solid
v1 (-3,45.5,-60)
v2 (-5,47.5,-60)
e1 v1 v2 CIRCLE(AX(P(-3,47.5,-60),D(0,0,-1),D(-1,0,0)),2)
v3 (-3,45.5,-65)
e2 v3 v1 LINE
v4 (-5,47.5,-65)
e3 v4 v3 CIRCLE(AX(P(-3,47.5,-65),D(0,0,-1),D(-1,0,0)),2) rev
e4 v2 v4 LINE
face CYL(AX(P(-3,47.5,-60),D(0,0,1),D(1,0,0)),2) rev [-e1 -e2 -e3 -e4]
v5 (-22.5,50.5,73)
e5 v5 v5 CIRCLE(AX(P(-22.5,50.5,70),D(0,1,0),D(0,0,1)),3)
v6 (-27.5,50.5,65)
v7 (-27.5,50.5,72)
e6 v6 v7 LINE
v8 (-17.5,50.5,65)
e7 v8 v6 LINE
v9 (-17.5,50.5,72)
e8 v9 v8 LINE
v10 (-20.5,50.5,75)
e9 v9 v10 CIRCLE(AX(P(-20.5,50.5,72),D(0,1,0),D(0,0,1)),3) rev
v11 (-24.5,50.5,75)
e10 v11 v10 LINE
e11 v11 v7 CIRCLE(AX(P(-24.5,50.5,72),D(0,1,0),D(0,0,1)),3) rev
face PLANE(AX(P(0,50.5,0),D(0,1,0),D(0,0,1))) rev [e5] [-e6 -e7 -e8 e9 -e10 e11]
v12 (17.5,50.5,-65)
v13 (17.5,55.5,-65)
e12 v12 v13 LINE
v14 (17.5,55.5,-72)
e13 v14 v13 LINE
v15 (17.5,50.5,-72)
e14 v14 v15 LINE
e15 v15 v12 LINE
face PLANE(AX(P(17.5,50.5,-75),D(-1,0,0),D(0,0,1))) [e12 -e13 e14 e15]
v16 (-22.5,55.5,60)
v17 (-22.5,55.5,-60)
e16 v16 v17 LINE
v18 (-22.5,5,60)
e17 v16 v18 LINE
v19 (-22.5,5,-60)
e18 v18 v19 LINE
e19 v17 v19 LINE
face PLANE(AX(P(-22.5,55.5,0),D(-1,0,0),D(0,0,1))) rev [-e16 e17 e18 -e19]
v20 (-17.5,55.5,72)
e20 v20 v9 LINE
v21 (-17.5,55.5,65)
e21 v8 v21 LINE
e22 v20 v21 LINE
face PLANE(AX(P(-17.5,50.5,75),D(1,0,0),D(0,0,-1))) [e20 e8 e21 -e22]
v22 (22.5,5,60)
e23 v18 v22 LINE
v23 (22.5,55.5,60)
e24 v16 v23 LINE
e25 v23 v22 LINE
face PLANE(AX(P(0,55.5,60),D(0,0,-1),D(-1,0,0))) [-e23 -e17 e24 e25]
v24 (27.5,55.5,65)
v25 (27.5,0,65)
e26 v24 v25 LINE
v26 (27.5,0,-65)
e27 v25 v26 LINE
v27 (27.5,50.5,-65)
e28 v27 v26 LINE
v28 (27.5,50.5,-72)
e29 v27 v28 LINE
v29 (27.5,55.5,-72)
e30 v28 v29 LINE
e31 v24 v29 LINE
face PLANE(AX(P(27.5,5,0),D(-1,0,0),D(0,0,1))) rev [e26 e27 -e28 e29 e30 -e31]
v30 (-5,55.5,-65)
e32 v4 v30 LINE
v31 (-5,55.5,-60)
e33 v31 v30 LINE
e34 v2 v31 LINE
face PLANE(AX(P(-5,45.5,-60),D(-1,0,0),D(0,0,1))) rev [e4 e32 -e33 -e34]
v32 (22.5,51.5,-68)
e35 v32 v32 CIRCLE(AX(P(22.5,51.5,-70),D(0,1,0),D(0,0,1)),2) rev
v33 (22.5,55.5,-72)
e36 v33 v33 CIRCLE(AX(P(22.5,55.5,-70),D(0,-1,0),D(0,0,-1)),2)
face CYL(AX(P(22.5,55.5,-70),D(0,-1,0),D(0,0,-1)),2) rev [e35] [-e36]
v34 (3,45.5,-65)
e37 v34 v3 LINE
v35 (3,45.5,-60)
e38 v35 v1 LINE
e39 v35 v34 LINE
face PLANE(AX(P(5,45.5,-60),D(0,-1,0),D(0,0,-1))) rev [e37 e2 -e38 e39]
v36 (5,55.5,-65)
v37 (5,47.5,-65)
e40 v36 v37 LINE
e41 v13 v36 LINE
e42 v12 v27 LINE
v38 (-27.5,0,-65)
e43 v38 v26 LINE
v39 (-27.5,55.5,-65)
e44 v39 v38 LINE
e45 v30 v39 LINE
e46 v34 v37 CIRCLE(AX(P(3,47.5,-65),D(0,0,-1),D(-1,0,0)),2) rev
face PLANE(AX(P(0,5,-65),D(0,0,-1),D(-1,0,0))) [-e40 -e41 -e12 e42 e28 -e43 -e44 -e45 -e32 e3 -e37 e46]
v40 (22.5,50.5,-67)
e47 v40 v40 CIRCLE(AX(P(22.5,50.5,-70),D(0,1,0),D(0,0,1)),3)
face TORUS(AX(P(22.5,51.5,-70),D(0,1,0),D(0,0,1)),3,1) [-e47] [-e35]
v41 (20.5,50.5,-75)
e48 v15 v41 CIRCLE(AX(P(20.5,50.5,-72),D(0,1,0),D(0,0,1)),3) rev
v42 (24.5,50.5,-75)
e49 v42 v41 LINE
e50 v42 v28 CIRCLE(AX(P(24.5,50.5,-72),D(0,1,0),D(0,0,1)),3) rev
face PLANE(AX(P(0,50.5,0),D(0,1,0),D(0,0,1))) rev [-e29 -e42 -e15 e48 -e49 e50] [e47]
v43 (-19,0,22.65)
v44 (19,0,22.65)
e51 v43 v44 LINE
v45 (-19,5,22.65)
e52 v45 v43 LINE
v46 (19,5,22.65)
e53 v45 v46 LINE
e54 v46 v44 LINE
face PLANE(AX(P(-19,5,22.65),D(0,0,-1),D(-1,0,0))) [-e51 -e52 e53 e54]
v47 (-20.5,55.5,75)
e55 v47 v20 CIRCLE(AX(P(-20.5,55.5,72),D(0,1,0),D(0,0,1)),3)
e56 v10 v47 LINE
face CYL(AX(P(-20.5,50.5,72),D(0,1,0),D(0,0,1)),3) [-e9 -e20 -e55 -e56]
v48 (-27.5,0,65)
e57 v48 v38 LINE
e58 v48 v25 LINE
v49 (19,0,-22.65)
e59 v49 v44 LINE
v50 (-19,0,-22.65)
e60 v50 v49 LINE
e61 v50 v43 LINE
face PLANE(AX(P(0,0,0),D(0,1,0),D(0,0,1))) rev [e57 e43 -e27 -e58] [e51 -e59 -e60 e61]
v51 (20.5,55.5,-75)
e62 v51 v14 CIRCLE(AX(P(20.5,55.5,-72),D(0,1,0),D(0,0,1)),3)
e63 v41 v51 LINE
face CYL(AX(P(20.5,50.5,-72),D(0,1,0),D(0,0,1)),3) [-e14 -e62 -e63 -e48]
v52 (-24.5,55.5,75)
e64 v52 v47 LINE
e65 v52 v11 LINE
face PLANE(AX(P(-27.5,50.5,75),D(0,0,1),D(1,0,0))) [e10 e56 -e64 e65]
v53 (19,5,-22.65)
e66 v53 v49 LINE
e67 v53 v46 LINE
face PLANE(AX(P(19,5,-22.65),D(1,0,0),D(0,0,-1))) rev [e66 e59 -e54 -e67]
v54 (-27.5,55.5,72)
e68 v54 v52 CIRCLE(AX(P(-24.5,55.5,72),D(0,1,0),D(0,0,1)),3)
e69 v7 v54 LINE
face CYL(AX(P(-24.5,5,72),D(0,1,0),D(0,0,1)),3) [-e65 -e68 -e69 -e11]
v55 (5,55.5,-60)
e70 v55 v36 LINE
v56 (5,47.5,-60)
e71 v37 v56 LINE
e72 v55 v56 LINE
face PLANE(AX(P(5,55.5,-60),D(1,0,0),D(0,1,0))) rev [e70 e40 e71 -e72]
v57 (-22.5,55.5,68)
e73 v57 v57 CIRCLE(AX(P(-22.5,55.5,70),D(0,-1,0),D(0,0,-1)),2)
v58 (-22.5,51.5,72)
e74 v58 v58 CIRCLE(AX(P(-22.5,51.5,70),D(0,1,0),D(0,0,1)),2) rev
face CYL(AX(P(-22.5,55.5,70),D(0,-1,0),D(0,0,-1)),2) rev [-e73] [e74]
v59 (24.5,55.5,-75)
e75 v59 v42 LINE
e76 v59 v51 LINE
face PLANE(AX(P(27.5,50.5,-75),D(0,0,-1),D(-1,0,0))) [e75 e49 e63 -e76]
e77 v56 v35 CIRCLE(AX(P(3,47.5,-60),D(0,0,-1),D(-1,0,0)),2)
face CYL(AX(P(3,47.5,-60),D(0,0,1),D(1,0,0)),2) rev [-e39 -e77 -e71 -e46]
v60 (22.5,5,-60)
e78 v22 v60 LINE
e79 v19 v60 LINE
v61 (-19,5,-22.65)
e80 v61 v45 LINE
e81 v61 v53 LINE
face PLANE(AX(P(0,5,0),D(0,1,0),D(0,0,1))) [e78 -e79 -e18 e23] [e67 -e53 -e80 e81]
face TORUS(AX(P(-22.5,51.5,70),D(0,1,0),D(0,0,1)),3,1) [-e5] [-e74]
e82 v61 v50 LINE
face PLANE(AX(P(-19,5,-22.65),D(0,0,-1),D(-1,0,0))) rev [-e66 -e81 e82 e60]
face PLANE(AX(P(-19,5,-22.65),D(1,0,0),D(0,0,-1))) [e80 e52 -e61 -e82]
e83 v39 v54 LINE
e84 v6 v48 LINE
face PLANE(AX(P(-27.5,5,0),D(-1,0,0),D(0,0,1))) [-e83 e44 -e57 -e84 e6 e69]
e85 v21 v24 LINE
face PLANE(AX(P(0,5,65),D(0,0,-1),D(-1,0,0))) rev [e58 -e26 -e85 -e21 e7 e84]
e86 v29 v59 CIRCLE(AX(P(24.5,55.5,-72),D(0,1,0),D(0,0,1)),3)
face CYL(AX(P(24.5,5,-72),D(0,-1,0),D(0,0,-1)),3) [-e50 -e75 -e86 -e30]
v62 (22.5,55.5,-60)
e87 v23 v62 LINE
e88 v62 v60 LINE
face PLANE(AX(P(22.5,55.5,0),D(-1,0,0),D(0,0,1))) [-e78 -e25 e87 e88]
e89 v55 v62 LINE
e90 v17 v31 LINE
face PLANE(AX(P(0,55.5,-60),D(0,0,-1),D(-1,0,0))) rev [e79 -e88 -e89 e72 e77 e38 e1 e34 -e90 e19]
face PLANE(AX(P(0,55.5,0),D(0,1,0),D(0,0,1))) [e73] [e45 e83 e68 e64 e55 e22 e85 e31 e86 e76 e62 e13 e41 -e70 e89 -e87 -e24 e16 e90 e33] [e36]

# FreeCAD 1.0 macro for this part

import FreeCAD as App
import Part
import Sketcher
Q = App.Units.Quantity


def edges_at(feature, points):
    """Names of the edges that pass closest to the given points."""
    edges = feature.Shape.Edges
    near = lambda p: min(range(len(edges)), key=lambda i: edges[i].distToShape(Part.Vertex(*p))[0])
    return sorted({f"Edge{near(p) + 1}" for p in points})

doc = App.newDocument("Part")
body = doc.addObject("PartDesign::Body", "Body")

sketch1 = doc.addObject("Sketcher::SketchObject", "Sketch")
body.addObject(sketch1)
sketch1.AttachmentSupport = (doc.XZ_Plane, [""])
sketch1.MapMode = "FlatFace"
sketch1.addGeometry(Part.LineSegment(App.Vector(-27.5, -65, 0), App.Vector(-27.5, 65, 0)), False)
sketch1.addGeometry(Part.LineSegment(App.Vector(-27.5, 65, 0), App.Vector(27.5, 65, 0)), False)
sketch1.addGeometry(Part.LineSegment(App.Vector(27.5, 65, 0), App.Vector(27.5, -65, 0)), False)
sketch1.addGeometry(Part.LineSegment(App.Vector(27.5, -65, 0), App.Vector(-27.5, -65, 0)), False)
sketch1.addConstraint(Sketcher.Constraint("Coincident", 0, 2, 1, 1))
sketch1.addConstraint(Sketcher.Constraint("Coincident", 1, 2, 2, 1))
sketch1.addConstraint(Sketcher.Constraint("Coincident", 2, 2, 3, 1))
sketch1.addConstraint(Sketcher.Constraint("Coincident", 3, 2, 0, 1))
sketch1.addConstraint(Sketcher.Constraint("Vertical", 0))
sketch1.addConstraint(Sketcher.Constraint("Horizontal", 1))
sketch1.addConstraint(Sketcher.Constraint("Vertical", 2))
sketch1.addConstraint(Sketcher.Constraint("Horizontal", 3))
sketch1.addConstraint(Sketcher.Constraint("Symmetric", 0, 2, 2, 2, -1, 1))
sketch1.addConstraint(Sketcher.Constraint("DistanceX", 1, 1, 1, 2, Q("55 mm")))
sketch1.addConstraint(Sketcher.Constraint("DistanceY", 0, 1, 0, 2, Q("130 mm")))
pad1 = doc.addObject("PartDesign::Pad", "Pad")
body.addObject(pad1)
pad1.Profile = sketch1
pad1.Length = 5
pad1.Reversed = True

sketch2 = doc.addObject("Sketcher::SketchObject", "Sketch001")
body.addObject(sketch2)
sketch2.AttachmentSupport = (doc.XZ_Plane, [""])
sketch2.MapMode = "FlatFace"
sketch2.AttachmentOffset = App.Placement(App.Vector(0, 0, -5), App.Rotation())
sketch2.addGeometry(Part.LineSegment(App.Vector(-27.5, -65, 0), App.Vector(-27.5, 65, 0)), False)
sketch2.addGeometry(Part.LineSegment(App.Vector(-27.5, 65, 0), App.Vector(27.5, 65, 0)), False)
sketch2.addGeometry(Part.LineSegment(App.Vector(27.5, 65, 0), App.Vector(27.5, -65, 0)), False)
sketch2.addGeometry(Part.LineSegment(App.Vector(27.5, -65, 0), App.Vector(-27.5, -65, 0)), False)
sketch2.addGeometry(Part.LineSegment(App.Vector(22.5, 60, 0), App.Vector(-22.5, 60, 0)), False)
sketch2.addGeometry(Part.LineSegment(App.Vector(-22.5, 60, 0), App.Vector(-22.5, -60, 0)), False)
sketch2.addGeometry(Part.LineSegment(App.Vector(-22.5, -60, 0), App.Vector(22.5, -60, 0)), False)
sketch2.addGeometry(Part.LineSegment(App.Vector(22.5, -60, 0), App.Vector(22.5, 60, 0)), False)
sketch2.addConstraint(Sketcher.Constraint("Coincident", 0, 2, 1, 1))
sketch2.addConstraint(Sketcher.Constraint("Coincident", 1, 2, 2, 1))
sketch2.addConstraint(Sketcher.Constraint("Coincident", 2, 2, 3, 1))
sketch2.addConstraint(Sketcher.Constraint("Coincident", 3, 2, 0, 1))
sketch2.addConstraint(Sketcher.Constraint("Coincident", 4, 2, 5, 1))
sketch2.addConstraint(Sketcher.Constraint("Coincident", 5, 2, 6, 1))
sketch2.addConstraint(Sketcher.Constraint("Coincident", 6, 2, 7, 1))
sketch2.addConstraint(Sketcher.Constraint("Coincident", 7, 2, 4, 1))
sketch2.addConstraint(Sketcher.Constraint("Vertical", 0))
sketch2.addConstraint(Sketcher.Constraint("Horizontal", 1))
sketch2.addConstraint(Sketcher.Constraint("Vertical", 2))
sketch2.addConstraint(Sketcher.Constraint("Horizontal", 3))
sketch2.addConstraint(Sketcher.Constraint("Horizontal", 4))
sketch2.addConstraint(Sketcher.Constraint("Vertical", 5))
sketch2.addConstraint(Sketcher.Constraint("Horizontal", 6))
sketch2.addConstraint(Sketcher.Constraint("Vertical", 7))
sketch2.addConstraint(Sketcher.Constraint("Symmetric", 0, 2, 2, 2, -1, 1))
sketch2.addConstraint(Sketcher.Constraint("Symmetric", 4, 2, 6, 2, -1, 1))
sketch2.addConstraint(Sketcher.Constraint("DistanceX", 1, 1, 1, 2, Q("55 mm")))
sketch2.addConstraint(Sketcher.Constraint("DistanceX", 4, 2, 4, 1, Q("45 mm")))
sketch2.addConstraint(Sketcher.Constraint("DistanceY", 0, 1, 0, 2, Q("130 mm")))
sketch2.addConstraint(Sketcher.Constraint("DistanceY", 5, 2, 5, 1, Q("120 mm")))
pad2 = doc.addObject("PartDesign::Pad", "Pad001")
body.addObject(pad2)
pad2.Profile = sketch2
pad2.Length = 50.5
pad2.Reversed = True

sketch3 = doc.addObject("Sketcher::SketchObject", "Sketch002")
body.addObject(sketch3)
sketch3.AttachmentSupport = (doc.XZ_Plane, [""])
sketch3.MapMode = "FlatFace"
sketch3.AttachmentOffset = App.Placement(App.Vector(0, 0, -55.5), App.Rotation())
sketch3.addGeometry(Part.LineSegment(App.Vector(17.5, -75, 0), App.Vector(17.5, -65, 0)), False)
sketch3.addGeometry(Part.LineSegment(App.Vector(17.5, -65, 0), App.Vector(27.5, -65, 0)), False)
sketch3.addGeometry(Part.LineSegment(App.Vector(27.5, -65, 0), App.Vector(27.5, -75, 0)), False)
sketch3.addGeometry(Part.LineSegment(App.Vector(27.5, -75, 0), App.Vector(17.5, -75, 0)), False)
sketch3.addGeometry(Part.LineSegment(App.Vector(-27.5, 65, 0), App.Vector(-27.5, 75, 0)), False)
sketch3.addGeometry(Part.LineSegment(App.Vector(-27.5, 75, 0), App.Vector(-17.5, 75, 0)), False)
sketch3.addGeometry(Part.LineSegment(App.Vector(-17.5, 75, 0), App.Vector(-17.5, 65, 0)), False)
sketch3.addGeometry(Part.LineSegment(App.Vector(-17.5, 65, 0), App.Vector(-27.5, 65, 0)), False)
sketch3.addConstraint(Sketcher.Constraint("Coincident", 0, 2, 1, 1))
sketch3.addConstraint(Sketcher.Constraint("Coincident", 1, 2, 2, 1))
sketch3.addConstraint(Sketcher.Constraint("Coincident", 2, 2, 3, 1))
sketch3.addConstraint(Sketcher.Constraint("Coincident", 3, 2, 0, 1))
sketch3.addConstraint(Sketcher.Constraint("Coincident", 4, 2, 5, 1))
sketch3.addConstraint(Sketcher.Constraint("Coincident", 5, 2, 6, 1))
sketch3.addConstraint(Sketcher.Constraint("Coincident", 6, 2, 7, 1))
sketch3.addConstraint(Sketcher.Constraint("Coincident", 7, 2, 4, 1))
sketch3.addConstraint(Sketcher.Constraint("Vertical", 0))
sketch3.addConstraint(Sketcher.Constraint("Horizontal", 1))
sketch3.addConstraint(Sketcher.Constraint("Vertical", 2))
sketch3.addConstraint(Sketcher.Constraint("Horizontal", 3))
sketch3.addConstraint(Sketcher.Constraint("Vertical", 4))
sketch3.addConstraint(Sketcher.Constraint("Horizontal", 5))
sketch3.addConstraint(Sketcher.Constraint("Vertical", 6))
sketch3.addConstraint(Sketcher.Constraint("Horizontal", 7))
sketch3.addConstraint(Sketcher.Constraint("Symmetric", 2, 2, 4, 2, -1, 1))
sketch3.addConstraint(Sketcher.Constraint("Symmetric", 0, 2, 6, 2, -1, 1))
sketch3.addConstraint(Sketcher.Constraint("Equal", 7, 0))
sketch3.addConstraint(Sketcher.Constraint("DistanceX", 1, 1, 1, 2, Q("10 mm")))
sketch3.addConstraint(Sketcher.Constraint("DistanceY", 0, 2, -1, 1, Q("65 mm")))
sketch3.addConstraint(Sketcher.Constraint("DistanceX", 4, 2, 0, 2, Q("45 mm")))
pad3 = doc.addObject("PartDesign::Pad", "Pad002")
body.addObject(pad3)
pad3.Profile = sketch3
pad3.Length = 5

sketch4 = doc.addObject("Sketcher::SketchObject", "Sketch003")
body.addObject(sketch4)
sketch4.AttachmentSupport = (doc.XZ_Plane, [""])
sketch4.MapMode = "FlatFace"
sketch4.AttachmentOffset = App.Placement(App.Vector(0, 0, -50.5), App.Rotation())
sketch4.addGeometry(Part.Circle(App.Vector(22.5, -70, 0), App.Vector(0, 0, 1), 2), False)
sketch4.addGeometry(Part.Circle(App.Vector(-22.5, 70, 0), App.Vector(0, 0, 1), 2), False)
sketch4.addConstraint(Sketcher.Constraint("Equal", 0, 1))
sketch4.addConstraint(Sketcher.Constraint("Symmetric", 0, 3, 1, 3, -1, 1))
sketch4.addConstraint(Sketcher.Constraint("Diameter", 0, Q("4 mm")))
sketch4.addConstraint(Sketcher.Constraint("DistanceY", 0, 3, -1, 1, Q("70 mm")))
sketch4.addConstraint(Sketcher.Constraint("DistanceX", 1, 3, 0, 3, Q("45 mm")))
pocket1 = doc.addObject("PartDesign::Pocket", "Pocket")
body.addObject(pocket1)
pocket1.Profile = sketch4
pocket1.Length = 5
doc.recompute()

fillet = doc.addObject("PartDesign::Fillet", "Fillet")
body.addObject(fillet)
fillet.Base = (pocket1, edges_at(pocket1, [(22.5, 50.5, -68)]))
fillet.Radius = 1
doc.recompute()

fillet2 = doc.addObject("PartDesign::Fillet", "Fillet001")
body.addObject(fillet2)
fillet2.Base = (fillet, edges_at(fillet, [(-22.5, 50.5, 72)]))
fillet2.Radius = 1

sketch5 = doc.addObject("Sketcher::SketchObject", "Sketch004")
body.addObject(sketch5)
sketch5.AttachmentSupport = (doc.XZ_Plane, [""])
sketch5.MapMode = "FlatFace"
sketch5.addGeometry(Part.LineSegment(App.Vector(-19, 22.65, 0), App.Vector(-19, -22.65, 0)), False)
sketch5.addGeometry(Part.LineSegment(App.Vector(-19, -22.65, 0), App.Vector(19, -22.65, 0)), False)
sketch5.addGeometry(Part.LineSegment(App.Vector(19, -22.65, 0), App.Vector(19, 22.65, 0)), False)
sketch5.addGeometry(Part.LineSegment(App.Vector(19, 22.65, 0), App.Vector(-19, 22.65, 0)), False)
sketch5.addConstraint(Sketcher.Constraint("Coincident", 0, 2, 1, 1))
sketch5.addConstraint(Sketcher.Constraint("Coincident", 1, 2, 2, 1))
sketch5.addConstraint(Sketcher.Constraint("Coincident", 2, 2, 3, 1))
sketch5.addConstraint(Sketcher.Constraint("Coincident", 3, 2, 0, 1))
sketch5.addConstraint(Sketcher.Constraint("Vertical", 0))
sketch5.addConstraint(Sketcher.Constraint("Horizontal", 1))
sketch5.addConstraint(Sketcher.Constraint("Vertical", 2))
sketch5.addConstraint(Sketcher.Constraint("Horizontal", 3))
sketch5.addConstraint(Sketcher.Constraint("Symmetric", 0, 2, 2, 2, -1, 1))
sketch5.addConstraint(Sketcher.Constraint("DistanceX", 1, 1, 1, 2, Q("38 mm")))
sketch5.addConstraint(Sketcher.Constraint("DistanceY", 0, 2, 0, 1, Q("45.3 mm")))
pocket2 = doc.addObject("PartDesign::Pocket", "Pocket001")
body.addObject(pocket2)
pocket2.Profile = sketch5
pocket2.Length = 5
doc.recompute()

fillet3 = doc.addObject("PartDesign::Fillet", "Fillet002")
body.addObject(fillet3)
fillet3.Base = (pocket2, edges_at(pocket2, [
    (17.5, 53, -75),
    (27.5, 53, -75),
    (-17.5, 53, 75),
    (-27.5, 53, 75),
]))
fillet3.Radius = 3

sketch6 = doc.addObject("Sketcher::SketchObject", "Sketch005")
body.addObject(sketch6)
sketch6.AttachmentSupport = (doc.XY_Plane, [""])
sketch6.MapMode = "FlatFace"
sketch6.AttachmentOffset = App.Placement(App.Vector(0, 0, -65), App.Rotation())
sketch6.addGeometry(Part.LineSegment(App.Vector(-5, 55.5, 0), App.Vector(5, 55.5, 0)), False)
sketch6.addGeometry(Part.LineSegment(App.Vector(5, 55.5, 0), App.Vector(5, 45.5, 0)), False)
sketch6.addGeometry(Part.LineSegment(App.Vector(5, 45.5, 0), App.Vector(-5, 45.5, 0)), False)
sketch6.addGeometry(Part.LineSegment(App.Vector(-5, 45.5, 0), App.Vector(-5, 55.5, 0)), False)
sketch6.addConstraint(Sketcher.Constraint("Coincident", 0, 2, 1, 1))
sketch6.addConstraint(Sketcher.Constraint("Coincident", 1, 2, 2, 1))
sketch6.addConstraint(Sketcher.Constraint("Coincident", 2, 2, 3, 1))
sketch6.addConstraint(Sketcher.Constraint("Coincident", 3, 2, 0, 1))
sketch6.addConstraint(Sketcher.Constraint("Horizontal", 0))
sketch6.addConstraint(Sketcher.Constraint("Vertical", 1))
sketch6.addConstraint(Sketcher.Constraint("Horizontal", 2))
sketch6.addConstraint(Sketcher.Constraint("Vertical", 3))
sketch6.addConstraint(Sketcher.Constraint("Equal", 2, 1))
sketch6.addConstraint(Sketcher.Constraint("DistanceX", 0, 1, 0, 2, Q("10 mm")))
sketch6.addConstraint(Sketcher.Constraint("DistanceX", -1, 1, 0, 2, Q("5 mm")))
sketch6.addConstraint(Sketcher.Constraint("DistanceY", -1, 1, 0, 2, Q("55.5 mm")))
pocket3 = doc.addObject("PartDesign::Pocket", "Pocket002")
body.addObject(pocket3)
pocket3.Profile = sketch6
pocket3.Length = 5
pocket3.Reversed = True
doc.recompute()

fillet4 = doc.addObject("PartDesign::Fillet", "Fillet003")
body.addObject(fillet4)
fillet4.Base = (pocket3, edges_at(pocket3, [(-5, 45.5, -62.5), (5, 45.5, -62.5)]))
fillet4.Radius = 2

doc.recompute()
